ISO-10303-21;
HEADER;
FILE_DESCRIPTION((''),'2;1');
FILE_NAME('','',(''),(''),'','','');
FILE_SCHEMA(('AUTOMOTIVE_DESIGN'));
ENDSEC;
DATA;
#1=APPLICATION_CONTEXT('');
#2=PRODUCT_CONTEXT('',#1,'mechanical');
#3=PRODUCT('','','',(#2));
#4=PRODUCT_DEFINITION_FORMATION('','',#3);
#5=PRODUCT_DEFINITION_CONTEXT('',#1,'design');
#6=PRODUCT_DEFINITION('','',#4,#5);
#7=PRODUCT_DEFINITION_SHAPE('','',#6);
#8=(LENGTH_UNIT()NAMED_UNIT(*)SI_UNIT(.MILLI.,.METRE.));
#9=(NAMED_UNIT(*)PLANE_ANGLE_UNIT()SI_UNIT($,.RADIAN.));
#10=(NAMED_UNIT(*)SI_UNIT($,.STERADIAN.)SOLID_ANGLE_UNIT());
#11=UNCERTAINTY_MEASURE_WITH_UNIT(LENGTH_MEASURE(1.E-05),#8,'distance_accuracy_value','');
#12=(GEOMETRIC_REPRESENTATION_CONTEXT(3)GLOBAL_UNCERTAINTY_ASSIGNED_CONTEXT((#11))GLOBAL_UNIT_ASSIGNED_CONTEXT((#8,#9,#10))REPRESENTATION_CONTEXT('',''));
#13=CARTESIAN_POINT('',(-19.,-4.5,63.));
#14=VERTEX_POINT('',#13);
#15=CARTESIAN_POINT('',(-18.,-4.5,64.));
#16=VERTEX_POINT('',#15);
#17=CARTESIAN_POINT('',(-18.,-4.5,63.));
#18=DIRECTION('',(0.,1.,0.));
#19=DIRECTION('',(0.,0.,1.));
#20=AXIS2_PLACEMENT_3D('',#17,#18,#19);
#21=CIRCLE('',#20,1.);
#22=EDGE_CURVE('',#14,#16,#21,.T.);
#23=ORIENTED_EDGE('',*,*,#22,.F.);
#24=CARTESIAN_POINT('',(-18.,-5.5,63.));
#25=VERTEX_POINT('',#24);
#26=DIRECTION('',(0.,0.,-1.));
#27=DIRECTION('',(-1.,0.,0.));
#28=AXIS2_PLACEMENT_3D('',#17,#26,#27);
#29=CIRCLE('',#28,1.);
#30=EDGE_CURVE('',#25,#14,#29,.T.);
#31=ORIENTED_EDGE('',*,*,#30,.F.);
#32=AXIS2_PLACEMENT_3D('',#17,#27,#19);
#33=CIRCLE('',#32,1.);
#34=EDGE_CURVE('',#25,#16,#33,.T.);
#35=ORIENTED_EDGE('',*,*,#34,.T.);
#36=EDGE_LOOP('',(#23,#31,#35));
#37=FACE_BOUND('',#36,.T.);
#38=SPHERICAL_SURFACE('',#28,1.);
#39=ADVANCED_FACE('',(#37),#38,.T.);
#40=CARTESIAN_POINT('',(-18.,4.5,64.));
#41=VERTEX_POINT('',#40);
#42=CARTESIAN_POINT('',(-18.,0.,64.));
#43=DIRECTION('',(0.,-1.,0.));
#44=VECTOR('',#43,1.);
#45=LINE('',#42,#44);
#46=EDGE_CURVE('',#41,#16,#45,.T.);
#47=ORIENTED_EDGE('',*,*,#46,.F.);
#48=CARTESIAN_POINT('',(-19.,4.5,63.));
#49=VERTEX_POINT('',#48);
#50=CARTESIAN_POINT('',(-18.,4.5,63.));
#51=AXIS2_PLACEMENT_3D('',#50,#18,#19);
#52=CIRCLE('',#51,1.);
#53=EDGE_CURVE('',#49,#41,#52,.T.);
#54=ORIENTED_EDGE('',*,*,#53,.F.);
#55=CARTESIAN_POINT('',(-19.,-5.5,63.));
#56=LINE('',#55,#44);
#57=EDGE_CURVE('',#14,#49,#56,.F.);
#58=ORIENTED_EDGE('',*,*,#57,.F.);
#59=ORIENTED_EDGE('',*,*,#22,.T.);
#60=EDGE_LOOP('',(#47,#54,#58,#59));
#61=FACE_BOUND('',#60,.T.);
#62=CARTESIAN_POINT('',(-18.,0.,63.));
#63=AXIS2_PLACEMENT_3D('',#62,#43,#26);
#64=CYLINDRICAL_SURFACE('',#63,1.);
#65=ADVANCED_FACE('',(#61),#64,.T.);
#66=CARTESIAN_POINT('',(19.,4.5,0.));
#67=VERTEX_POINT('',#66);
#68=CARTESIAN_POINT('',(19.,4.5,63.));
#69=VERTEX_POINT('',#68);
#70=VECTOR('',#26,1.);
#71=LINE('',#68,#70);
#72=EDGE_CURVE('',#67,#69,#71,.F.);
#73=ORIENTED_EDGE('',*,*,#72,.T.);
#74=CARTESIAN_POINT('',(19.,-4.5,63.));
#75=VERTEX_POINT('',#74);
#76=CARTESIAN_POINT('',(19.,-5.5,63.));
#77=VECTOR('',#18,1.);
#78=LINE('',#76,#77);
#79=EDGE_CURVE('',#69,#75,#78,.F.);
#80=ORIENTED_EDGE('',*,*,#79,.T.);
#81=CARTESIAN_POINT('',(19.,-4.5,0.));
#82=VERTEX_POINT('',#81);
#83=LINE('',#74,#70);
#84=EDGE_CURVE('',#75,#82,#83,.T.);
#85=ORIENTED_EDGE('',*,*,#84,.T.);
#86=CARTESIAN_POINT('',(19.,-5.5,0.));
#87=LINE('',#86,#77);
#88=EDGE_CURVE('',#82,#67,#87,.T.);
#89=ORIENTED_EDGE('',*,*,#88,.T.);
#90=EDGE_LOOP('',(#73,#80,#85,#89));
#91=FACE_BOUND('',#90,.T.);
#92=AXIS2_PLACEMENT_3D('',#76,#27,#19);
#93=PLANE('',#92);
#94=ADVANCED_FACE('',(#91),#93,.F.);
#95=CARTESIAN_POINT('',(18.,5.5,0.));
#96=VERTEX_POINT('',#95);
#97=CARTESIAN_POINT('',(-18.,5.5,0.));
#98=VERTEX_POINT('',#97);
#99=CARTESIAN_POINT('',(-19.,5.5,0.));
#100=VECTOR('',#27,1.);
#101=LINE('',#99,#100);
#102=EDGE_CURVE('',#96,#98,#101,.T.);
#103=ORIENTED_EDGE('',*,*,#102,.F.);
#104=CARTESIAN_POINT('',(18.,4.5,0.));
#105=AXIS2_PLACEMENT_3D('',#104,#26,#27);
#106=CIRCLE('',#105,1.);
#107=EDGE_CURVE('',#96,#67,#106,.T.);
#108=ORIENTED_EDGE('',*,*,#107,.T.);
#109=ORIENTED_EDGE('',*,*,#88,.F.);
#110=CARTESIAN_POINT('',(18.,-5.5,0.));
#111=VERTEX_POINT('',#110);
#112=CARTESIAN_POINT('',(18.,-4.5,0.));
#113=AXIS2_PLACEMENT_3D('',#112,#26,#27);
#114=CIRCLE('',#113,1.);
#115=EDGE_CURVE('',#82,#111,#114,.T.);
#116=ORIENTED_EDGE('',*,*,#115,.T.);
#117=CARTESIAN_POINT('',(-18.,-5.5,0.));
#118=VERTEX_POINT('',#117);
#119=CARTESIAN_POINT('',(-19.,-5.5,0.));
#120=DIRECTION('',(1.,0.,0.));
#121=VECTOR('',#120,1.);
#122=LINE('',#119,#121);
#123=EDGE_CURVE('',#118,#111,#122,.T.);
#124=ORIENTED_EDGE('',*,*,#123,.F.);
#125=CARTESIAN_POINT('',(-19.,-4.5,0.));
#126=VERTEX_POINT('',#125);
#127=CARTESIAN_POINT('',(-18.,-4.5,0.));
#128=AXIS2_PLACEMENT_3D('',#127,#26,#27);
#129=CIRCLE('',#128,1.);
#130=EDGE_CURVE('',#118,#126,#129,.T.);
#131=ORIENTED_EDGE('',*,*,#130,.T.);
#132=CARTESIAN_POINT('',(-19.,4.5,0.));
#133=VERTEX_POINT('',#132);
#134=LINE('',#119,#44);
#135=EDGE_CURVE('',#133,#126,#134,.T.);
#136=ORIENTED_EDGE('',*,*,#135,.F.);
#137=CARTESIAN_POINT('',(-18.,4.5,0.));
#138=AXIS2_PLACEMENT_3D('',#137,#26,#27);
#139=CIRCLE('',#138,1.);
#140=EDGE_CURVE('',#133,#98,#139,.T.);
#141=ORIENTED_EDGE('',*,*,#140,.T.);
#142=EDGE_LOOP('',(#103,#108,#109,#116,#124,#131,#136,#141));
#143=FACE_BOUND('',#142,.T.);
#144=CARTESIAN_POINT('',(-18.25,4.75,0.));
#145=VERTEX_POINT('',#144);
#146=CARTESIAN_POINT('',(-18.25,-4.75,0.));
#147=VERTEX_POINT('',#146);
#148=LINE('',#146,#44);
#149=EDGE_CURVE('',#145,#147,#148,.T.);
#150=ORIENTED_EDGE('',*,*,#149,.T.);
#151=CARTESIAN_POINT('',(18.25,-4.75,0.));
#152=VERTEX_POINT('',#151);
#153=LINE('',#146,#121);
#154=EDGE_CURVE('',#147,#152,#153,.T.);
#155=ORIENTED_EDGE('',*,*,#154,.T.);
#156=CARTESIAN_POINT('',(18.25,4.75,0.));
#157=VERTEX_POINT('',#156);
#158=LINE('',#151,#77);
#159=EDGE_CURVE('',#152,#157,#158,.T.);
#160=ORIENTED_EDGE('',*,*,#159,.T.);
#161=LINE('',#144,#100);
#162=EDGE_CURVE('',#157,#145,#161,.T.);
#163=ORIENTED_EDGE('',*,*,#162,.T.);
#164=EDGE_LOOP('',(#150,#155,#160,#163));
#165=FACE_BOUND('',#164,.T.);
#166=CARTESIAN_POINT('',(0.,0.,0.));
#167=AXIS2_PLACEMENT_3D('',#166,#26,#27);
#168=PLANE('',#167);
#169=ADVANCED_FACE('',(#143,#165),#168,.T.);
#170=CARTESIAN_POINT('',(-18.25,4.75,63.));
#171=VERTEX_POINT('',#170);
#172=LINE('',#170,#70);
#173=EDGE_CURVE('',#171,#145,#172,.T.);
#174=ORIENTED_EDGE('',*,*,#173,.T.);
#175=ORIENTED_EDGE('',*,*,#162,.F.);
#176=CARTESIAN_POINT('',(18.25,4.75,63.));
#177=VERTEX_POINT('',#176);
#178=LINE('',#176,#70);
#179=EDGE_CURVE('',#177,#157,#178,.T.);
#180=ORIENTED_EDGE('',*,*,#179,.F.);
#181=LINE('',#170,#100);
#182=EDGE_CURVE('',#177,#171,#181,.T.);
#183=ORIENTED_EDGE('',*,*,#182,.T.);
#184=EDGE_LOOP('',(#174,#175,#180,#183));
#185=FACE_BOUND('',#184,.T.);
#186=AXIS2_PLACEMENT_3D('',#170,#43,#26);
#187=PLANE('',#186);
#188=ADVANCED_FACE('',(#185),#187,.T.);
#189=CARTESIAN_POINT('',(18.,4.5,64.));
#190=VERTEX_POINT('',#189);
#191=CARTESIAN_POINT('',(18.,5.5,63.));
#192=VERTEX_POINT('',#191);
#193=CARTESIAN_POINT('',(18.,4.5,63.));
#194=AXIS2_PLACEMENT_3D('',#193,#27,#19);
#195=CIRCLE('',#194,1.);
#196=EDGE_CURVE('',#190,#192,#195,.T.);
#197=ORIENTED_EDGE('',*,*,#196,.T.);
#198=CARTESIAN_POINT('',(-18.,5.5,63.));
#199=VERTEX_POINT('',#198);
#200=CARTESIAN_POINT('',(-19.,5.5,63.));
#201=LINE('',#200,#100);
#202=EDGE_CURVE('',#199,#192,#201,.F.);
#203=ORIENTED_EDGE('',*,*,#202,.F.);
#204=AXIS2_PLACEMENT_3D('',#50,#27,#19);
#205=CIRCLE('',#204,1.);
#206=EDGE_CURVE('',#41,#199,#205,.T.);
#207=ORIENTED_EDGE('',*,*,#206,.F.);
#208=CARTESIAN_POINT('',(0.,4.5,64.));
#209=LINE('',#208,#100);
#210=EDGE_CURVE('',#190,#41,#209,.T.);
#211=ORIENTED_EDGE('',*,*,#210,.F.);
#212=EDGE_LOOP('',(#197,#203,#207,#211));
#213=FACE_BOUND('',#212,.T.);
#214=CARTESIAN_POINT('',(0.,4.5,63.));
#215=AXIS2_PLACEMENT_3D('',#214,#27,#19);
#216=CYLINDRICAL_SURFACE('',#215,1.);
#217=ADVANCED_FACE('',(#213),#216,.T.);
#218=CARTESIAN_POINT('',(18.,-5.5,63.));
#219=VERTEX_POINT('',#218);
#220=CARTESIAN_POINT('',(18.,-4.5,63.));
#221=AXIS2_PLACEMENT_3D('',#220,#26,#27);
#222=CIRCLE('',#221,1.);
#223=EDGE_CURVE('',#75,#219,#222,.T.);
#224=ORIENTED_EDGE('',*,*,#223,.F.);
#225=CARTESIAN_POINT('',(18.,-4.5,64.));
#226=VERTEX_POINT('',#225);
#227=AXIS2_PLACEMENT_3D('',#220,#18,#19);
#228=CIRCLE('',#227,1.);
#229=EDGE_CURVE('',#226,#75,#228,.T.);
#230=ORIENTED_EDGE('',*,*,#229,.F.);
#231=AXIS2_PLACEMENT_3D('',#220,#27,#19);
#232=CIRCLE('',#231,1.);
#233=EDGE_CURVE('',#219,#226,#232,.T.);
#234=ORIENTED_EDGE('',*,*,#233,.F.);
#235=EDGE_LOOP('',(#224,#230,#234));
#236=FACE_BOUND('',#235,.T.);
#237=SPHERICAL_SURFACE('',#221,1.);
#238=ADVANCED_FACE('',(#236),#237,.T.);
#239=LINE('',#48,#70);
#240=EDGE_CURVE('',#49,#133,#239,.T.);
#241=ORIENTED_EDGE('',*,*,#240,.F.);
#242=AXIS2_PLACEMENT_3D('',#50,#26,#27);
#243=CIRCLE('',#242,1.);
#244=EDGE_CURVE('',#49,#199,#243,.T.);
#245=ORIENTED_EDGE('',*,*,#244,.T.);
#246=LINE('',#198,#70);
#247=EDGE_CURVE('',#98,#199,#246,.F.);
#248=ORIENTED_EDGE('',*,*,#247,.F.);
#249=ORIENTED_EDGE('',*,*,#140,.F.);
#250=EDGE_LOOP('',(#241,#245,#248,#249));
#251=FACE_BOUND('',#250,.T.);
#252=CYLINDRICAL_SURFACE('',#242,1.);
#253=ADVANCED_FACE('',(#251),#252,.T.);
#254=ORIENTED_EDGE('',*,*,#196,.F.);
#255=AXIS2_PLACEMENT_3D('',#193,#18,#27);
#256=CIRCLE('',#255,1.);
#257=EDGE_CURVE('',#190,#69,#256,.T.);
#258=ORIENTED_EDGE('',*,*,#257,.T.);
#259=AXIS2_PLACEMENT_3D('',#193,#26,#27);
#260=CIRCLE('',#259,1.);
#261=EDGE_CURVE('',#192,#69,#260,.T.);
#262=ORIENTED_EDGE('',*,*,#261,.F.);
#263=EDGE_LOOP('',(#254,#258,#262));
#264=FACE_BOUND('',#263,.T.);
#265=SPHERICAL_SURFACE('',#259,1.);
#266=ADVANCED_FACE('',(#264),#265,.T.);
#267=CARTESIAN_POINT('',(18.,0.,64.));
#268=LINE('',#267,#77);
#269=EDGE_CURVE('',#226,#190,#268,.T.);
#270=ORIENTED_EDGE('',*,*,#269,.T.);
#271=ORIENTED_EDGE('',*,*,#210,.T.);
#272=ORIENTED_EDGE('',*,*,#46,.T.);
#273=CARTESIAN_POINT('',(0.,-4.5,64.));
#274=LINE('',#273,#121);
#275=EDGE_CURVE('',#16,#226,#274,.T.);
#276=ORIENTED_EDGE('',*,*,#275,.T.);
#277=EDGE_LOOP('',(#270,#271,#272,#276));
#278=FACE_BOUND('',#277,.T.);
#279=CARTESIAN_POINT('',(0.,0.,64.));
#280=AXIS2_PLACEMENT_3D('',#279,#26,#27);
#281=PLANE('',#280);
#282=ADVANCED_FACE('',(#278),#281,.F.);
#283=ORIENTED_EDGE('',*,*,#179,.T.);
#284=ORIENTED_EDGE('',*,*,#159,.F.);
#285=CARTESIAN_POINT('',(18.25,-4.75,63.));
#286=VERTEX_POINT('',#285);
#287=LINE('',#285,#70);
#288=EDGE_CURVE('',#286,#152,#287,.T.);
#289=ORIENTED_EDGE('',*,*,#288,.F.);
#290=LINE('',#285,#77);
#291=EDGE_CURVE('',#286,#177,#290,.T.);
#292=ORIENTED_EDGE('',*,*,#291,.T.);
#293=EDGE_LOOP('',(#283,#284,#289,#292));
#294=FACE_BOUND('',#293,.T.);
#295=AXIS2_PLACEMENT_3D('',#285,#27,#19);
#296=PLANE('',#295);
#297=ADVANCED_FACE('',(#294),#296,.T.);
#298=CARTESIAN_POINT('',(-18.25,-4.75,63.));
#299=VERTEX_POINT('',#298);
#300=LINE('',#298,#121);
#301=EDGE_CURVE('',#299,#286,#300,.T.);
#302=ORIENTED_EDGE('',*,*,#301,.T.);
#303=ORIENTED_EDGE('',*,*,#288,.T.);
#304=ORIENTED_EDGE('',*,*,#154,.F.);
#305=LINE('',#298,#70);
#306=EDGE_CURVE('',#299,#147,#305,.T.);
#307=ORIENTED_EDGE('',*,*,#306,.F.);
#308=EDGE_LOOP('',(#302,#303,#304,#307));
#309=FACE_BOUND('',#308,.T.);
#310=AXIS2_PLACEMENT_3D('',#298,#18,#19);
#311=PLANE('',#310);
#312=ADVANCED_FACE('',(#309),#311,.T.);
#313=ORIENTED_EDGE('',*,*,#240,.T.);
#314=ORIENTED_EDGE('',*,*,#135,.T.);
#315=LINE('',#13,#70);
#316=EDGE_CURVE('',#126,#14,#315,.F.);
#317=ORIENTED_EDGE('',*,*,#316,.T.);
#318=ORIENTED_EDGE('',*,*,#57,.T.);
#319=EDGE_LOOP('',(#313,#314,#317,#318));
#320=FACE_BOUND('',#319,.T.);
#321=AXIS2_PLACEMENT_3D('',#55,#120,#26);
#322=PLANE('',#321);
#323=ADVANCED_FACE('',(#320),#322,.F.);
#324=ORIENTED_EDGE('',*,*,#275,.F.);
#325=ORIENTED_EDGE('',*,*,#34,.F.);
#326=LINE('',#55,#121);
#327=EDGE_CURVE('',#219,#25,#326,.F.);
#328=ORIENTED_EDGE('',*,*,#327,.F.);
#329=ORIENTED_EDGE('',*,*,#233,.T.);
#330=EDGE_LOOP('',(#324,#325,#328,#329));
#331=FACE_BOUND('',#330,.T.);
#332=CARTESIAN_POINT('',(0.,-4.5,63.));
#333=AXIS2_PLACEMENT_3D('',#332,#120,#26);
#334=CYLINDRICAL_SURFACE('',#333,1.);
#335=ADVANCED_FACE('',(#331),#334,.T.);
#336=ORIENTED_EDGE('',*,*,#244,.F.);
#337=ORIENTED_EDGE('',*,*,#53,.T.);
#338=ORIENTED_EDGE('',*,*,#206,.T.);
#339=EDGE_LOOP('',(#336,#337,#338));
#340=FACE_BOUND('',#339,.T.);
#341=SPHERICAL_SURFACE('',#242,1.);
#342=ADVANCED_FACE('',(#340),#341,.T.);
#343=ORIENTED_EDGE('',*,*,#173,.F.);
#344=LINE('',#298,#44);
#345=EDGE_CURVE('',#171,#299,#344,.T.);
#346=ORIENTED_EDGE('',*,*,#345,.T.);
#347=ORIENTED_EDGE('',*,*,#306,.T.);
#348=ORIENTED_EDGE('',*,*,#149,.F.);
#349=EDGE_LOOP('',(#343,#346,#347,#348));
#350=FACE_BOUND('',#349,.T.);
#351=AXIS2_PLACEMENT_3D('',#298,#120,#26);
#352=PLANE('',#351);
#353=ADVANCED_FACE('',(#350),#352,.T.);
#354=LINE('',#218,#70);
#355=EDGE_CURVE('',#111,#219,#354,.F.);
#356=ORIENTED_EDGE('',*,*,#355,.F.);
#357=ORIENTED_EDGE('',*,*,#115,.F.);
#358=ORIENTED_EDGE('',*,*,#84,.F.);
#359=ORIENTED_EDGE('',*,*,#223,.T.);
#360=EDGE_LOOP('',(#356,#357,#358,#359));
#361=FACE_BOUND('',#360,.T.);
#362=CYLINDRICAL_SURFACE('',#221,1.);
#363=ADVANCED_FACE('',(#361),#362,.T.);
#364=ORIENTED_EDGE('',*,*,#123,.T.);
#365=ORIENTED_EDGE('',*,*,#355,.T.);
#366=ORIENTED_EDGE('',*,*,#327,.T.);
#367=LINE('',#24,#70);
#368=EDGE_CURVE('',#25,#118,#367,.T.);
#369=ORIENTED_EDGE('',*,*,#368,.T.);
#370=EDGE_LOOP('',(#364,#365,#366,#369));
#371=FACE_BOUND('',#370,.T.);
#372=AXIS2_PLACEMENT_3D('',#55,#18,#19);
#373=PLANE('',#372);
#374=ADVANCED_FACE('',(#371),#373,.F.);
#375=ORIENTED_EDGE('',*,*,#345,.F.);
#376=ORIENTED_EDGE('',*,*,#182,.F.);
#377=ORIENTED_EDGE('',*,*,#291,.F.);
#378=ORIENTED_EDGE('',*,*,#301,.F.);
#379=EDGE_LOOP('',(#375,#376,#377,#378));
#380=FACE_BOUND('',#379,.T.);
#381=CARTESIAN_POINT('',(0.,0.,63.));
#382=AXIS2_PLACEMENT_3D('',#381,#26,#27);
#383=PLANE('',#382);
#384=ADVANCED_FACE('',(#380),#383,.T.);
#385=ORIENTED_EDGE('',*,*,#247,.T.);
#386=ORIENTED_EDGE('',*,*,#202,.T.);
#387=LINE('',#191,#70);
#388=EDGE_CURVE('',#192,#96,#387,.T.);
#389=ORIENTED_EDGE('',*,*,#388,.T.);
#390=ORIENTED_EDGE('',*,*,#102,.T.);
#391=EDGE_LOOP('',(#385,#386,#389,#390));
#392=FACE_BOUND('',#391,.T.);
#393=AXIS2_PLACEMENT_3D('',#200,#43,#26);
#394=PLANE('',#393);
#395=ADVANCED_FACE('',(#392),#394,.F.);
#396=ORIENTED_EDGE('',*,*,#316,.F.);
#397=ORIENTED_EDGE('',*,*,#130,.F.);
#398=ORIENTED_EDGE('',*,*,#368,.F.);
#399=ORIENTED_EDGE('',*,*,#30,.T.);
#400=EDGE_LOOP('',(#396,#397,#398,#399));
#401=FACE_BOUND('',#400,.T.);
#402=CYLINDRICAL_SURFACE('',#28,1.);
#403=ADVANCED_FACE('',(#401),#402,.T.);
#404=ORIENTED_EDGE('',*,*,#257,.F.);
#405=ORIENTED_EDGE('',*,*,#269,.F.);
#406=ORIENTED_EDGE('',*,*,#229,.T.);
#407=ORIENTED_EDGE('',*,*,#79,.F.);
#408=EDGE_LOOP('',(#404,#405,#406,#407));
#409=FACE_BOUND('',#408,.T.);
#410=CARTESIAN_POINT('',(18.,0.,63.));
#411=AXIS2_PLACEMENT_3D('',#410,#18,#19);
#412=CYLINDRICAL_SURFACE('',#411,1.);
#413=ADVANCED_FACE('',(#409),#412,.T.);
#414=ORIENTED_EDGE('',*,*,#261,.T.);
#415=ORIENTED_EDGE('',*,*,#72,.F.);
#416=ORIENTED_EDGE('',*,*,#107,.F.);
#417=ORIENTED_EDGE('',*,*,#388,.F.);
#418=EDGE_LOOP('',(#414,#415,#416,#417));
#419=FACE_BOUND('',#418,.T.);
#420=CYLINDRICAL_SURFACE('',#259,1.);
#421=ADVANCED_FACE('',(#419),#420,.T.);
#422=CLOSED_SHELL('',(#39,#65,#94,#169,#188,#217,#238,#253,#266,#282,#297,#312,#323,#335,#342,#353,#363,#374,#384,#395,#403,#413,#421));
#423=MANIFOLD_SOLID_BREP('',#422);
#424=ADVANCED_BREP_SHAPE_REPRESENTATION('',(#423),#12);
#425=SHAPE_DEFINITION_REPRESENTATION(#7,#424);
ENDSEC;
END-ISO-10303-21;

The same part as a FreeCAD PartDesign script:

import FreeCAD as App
import Part
import Sketcher
from FreeCAD import Vector


def edges_at(feature, points):
    """Names of the edges that pass closest to the given points."""
    edges = feature.Shape.Edges
    near = lambda p: min(range(len(edges)), key=lambda i: edges[i].distToShape(Part.Vertex(*p))[0])
    return sorted({f"Edge{near(p) + 1}" for p in points})

doc = App.newDocument("Part")
params = doc.addObject("Spreadsheet::Sheet", "Params")
for row, (alias, value) in enumerate([
    ("sketch1_width", "38 mm"),
    ("sketch1_height", "11 mm"),
    ("sketch1_width2", "36.5 mm"),
    ("sketch1_height2", "9.5 mm"),
    ("pad1_length", "63 mm"),
    ("sketch2_width", "38 mm"),
    ("sketch2_height", "11 mm"),
    ("pad2_length", "1 mm"),
    ("fillet_radius", "1 mm"),
    ("fillet2_radius", "1 mm"),
    ("fillet3_radius", "1 mm"),
    ("fillet4_radius", "1 mm"),
    ("fillet5_radius", "1 mm"),
], start=1):
    params.set(f"A{row}", alias)
    params.set(f"B{row}", "=" + value)
    params.setAlias(f"B{row}", alias)

body = doc.addObject("PartDesign::Body", "Body")

# Sketch on XY plane
sketch1 = body.newObject("Sketcher::SketchObject", "Sketch")
sketch1.AttachmentSupport = (doc.getObject("XY_Plane"), [""])
sketch1.MapMode = "FlatFace"
sketch1.addGeometry(Part.LineSegment(Vector(-19, 6, 0), Vector(-19, -6, 0)), False)
sketch1.addGeometry(Part.LineSegment(Vector(-19, -6, 0), Vector(19, -6, 0)), False)
sketch1.addGeometry(Part.LineSegment(Vector(19, -6, 0), Vector(19, 6, 0)), False)
sketch1.addGeometry(Part.LineSegment(Vector(19, 6, 0), Vector(-19, 6, 0)), False)
sketch1.addGeometry(Part.LineSegment(Vector(18, -5, 0), Vector(-18, -5, 0)), False)
sketch1.addGeometry(Part.LineSegment(Vector(-18, -5, 0), Vector(-18, 5, 0)), False)
sketch1.addGeometry(Part.LineSegment(Vector(-18, 5, 0), Vector(18, 5, 0)), False)
sketch1.addGeometry(Part.LineSegment(Vector(18, 5, 0), Vector(18, -5, 0)), False)
sketch1.addConstraint(Sketcher.Constraint("Coincident", 0, 2, 1, 1))
sketch1.addConstraint(Sketcher.Constraint("Coincident", 1, 2, 2, 1))
sketch1.addConstraint(Sketcher.Constraint("Coincident", 2, 2, 3, 1))
sketch1.addConstraint(Sketcher.Constraint("Coincident", 3, 2, 0, 1))
sketch1.addConstraint(Sketcher.Constraint("Coincident", 4, 2, 5, 1))
sketch1.addConstraint(Sketcher.Constraint("Coincident", 5, 2, 6, 1))
sketch1.addConstraint(Sketcher.Constraint("Coincident", 6, 2, 7, 1))
sketch1.addConstraint(Sketcher.Constraint("Coincident", 7, 2, 4, 1))
sketch1.addConstraint(Sketcher.Constraint("Vertical", 0))
sketch1.addConstraint(Sketcher.Constraint("Horizontal", 1))
sketch1.addConstraint(Sketcher.Constraint("Vertical", 2))
sketch1.addConstraint(Sketcher.Constraint("Horizontal", 3))
sketch1.addConstraint(Sketcher.Constraint("Horizontal", 4))
sketch1.addConstraint(Sketcher.Constraint("Vertical", 5))
sketch1.addConstraint(Sketcher.Constraint("Horizontal", 6))
sketch1.addConstraint(Sketcher.Constraint("Vertical", 7))
sketch1.addConstraint(Sketcher.Constraint("Symmetric", 0, 2, 2, 2, -1, 1))
sketch1.addConstraint(Sketcher.Constraint("Symmetric", 4, 2, 6, 2, -1, 1))
sketch1.addConstraint(Sketcher.Constraint("DistanceX", 1, 1, 1, 2, 38.0))
sketch1.addConstraint(Sketcher.Constraint("DistanceY", 0, 2, 0, 1, 11.0))
sketch1.addConstraint(Sketcher.Constraint("DistanceX", 4, 2, 4, 1, 36.5))
sketch1.addConstraint(Sketcher.Constraint("DistanceY", 5, 1, 5, 2, 9.5))
sketch1.setExpression("Constraints[18]", "Params.sketch1_width")
sketch1.setExpression("Constraints[19]", "Params.sketch1_height")
sketch1.setExpression("Constraints[20]", "Params.sketch1_width2")
sketch1.setExpression("Constraints[21]", "Params.sketch1_height2")
pad1 = body.newObject("PartDesign::Pad", "Pad")
pad1.Profile = sketch1
pad1.setExpression("Length", "Params.pad1_length")

# Sketch on XY plane
sketch2 = body.newObject("Sketcher::SketchObject", "Sketch001")
sketch2.AttachmentSupport = (doc.getObject("XY_Plane"), [""])
sketch2.MapMode = "FlatFace"
sketch2.AttachmentOffset = App.Placement(Vector(0, 0, 63), App.Rotation())
sketch2.addGeometry(Part.LineSegment(Vector(-19, 6, 0), Vector(-19, -6, 0)), False)
sketch2.addGeometry(Part.LineSegment(Vector(-19, -6, 0), Vector(19, -6, 0)), False)
sketch2.addGeometry(Part.LineSegment(Vector(19, -6, 0), Vector(19, 6, 0)), False)
sketch2.addGeometry(Part.LineSegment(Vector(19, 6, 0), Vector(-19, 6, 0)), False)
sketch2.addConstraint(Sketcher.Constraint("Coincident", 0, 2, 1, 1))
sketch2.addConstraint(Sketcher.Constraint("Coincident", 1, 2, 2, 1))
sketch2.addConstraint(Sketcher.Constraint("Coincident", 2, 2, 3, 1))
sketch2.addConstraint(Sketcher.Constraint("Coincident", 3, 2, 0, 1))
sketch2.addConstraint(Sketcher.Constraint("Vertical", 0))
sketch2.addConstraint(Sketcher.Constraint("Horizontal", 1))
sketch2.addConstraint(Sketcher.Constraint("Vertical", 2))
sketch2.addConstraint(Sketcher.Constraint("Horizontal", 3))
sketch2.addConstraint(Sketcher.Constraint("Symmetric", 0, 2, 2, 2, -1, 1))
sketch2.addConstraint(Sketcher.Constraint("DistanceX", 1, 1, 1, 2, 38.0))
sketch2.addConstraint(Sketcher.Constraint("DistanceY", 0, 2, 0, 1, 11.0))
sketch2.setExpression("Constraints[9]", "Params.sketch2_width")
sketch2.setExpression("Constraints[10]", "Params.sketch2_height")
pad2 = body.newObject("PartDesign::Pad", "Pad001")
pad2.Profile = sketch2
pad2.setExpression("Length", "Params.pad2_length")
doc.recompute()

fillet = body.newObject("PartDesign::Fillet", "Fillet")
fillet.Base = (pad2, edges_at(pad2, [(-19, 5.5, 32)]))
fillet.setExpression("Radius", "Params.fillet_radius")
doc.recompute()

fillet2 = body.newObject("PartDesign::Fillet", "Fillet001")
fillet2.Base = (fillet, edges_at(fillet, [(19, 5.5, 32)]))
fillet2.setExpression("Radius", "Params.fillet2_radius")
doc.recompute()

fillet3 = body.newObject("PartDesign::Fillet", "Fillet002")
fillet3.Base = (fillet2, edges_at(fillet2, [(19, -5.5, 32)]))
fillet3.setExpression("Radius", "Params.fillet3_radius")
doc.recompute()

fillet4 = body.newObject("PartDesign::Fillet", "Fillet003")
fillet4.Base = (fillet3, edges_at(fillet3, [(-19, -5.5, 32)]))
fillet4.setExpression("Radius", "Params.fillet4_radius")
doc.recompute()

fillet5 = body.newObject("PartDesign::Fillet", "Fillet004")
fillet5.Base = (fillet4, edges_at(fillet4, [
    (-19, 0, 64),
    (-18.707, 5.207, 64),
    (0, 5.5, 64),
    (18.707, 5.207, 64),
    (19, 0, 64),
    (18.707, -5.207, 64),
    (0, -5.5, 64),
    (-18.707, -5.207, 64),
]))
fillet5.setExpression("Radius", "Params.fillet5_radius")

doc.recompute()
